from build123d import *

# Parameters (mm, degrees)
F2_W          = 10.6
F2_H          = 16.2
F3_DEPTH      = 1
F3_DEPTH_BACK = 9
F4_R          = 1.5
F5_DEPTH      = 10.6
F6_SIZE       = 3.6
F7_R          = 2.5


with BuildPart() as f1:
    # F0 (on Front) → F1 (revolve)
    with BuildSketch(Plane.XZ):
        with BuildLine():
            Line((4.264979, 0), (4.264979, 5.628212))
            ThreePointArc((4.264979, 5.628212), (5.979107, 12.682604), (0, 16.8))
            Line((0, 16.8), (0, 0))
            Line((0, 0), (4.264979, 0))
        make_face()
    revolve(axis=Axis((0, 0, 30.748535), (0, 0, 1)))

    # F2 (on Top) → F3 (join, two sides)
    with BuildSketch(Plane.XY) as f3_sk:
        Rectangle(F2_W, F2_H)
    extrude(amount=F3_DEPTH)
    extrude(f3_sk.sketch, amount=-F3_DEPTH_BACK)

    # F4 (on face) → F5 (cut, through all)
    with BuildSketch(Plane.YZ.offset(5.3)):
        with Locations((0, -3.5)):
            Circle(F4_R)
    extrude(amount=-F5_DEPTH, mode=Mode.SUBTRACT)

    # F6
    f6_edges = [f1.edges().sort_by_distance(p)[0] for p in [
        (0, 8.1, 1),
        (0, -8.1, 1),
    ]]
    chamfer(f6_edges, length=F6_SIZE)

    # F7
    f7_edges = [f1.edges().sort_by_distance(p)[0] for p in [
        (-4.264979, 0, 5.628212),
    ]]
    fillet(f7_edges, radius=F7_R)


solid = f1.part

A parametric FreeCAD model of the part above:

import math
import FreeCAD as App
import Part
import Sketcher


def edges_at(feature, points):
    """Names of the edges that pass closest to the given points."""
    edges = feature.Shape.Edges
    near = lambda p: min(range(len(edges)), key=lambda i: edges[i].distToShape(Part.Vertex(*p))[0])
    return sorted({f"Edge{near(p) + 1}" for p in points})


def add_polygon(sketch, points):
    """Adds a closed chain of lines whose ends are joined by coincident constraints."""
    first, n = sketch.GeometryCount, len(points)
    for a, b in zip(points, points[1:] + points[:1]):
        sketch.addGeometry(Part.LineSegment(App.Vector(*a, 0), App.Vector(*b, 0)), False)
    for i in range(n):
        sketch.addConstraint(Sketcher.Constraint("Coincident", first + i, 2, first + (i + 1) % n, 1))

doc = App.newDocument("Part")
body = doc.addObject("PartDesign::Body", "Body")

# Sketch on XZ plane
sketch1 = body.newObject("Sketcher::SketchObject", "Sketch")
sketch1.AttachmentSupport = (doc.getObject("XZ_Plane"), [""])
sketch1.MapMode = "FlatFace"
sketch1.addGeometry([
    Part.LineSegment(App.Vector(4.3, 0, 0), App.Vector(4.3, 5.6, 0)),
    Part.ArcOfCircle(Part.Circle(App.Vector(0, 10.4, 0), App.Vector(0, 0, 1), 6.4), math.radians(-48), math.radians(90)),
    Part.LineSegment(App.Vector(0, 16.8, 0), App.Vector(0, 0, 0)),
    Part.LineSegment(App.Vector(0, 0, 0), App.Vector(4.3, 0, 0)),
], False)
sketch1.addConstraint([
    Sketcher.Constraint("Coincident", 0, 2, 1, 1),
    Sketcher.Constraint("Coincident", 1, 2, 2, 1),
    Sketcher.Constraint("Coincident", 2, 2, 3, 1),
    Sketcher.Constraint("Coincident", 3, 2, 0, 1),
    Sketcher.Constraint("Vertical", 0),
    Sketcher.Constraint("Vertical", 2),
    Sketcher.Constraint("Horizontal", 3),
    Sketcher.Constraint("Coincident", 2, 2, -1, 1),
    Sketcher.Constraint("PointOnObject", 1, 3, -2),
    Sketcher.Constraint("Radius", 1, 6.4),
    Sketcher.Constraint("DistanceY", 2, 2, 2, 1, 16.8),
    Sketcher.Constraint("DistanceX", 3, 1, 3, 2, 4.264979),
])
revolution = body.newObject("PartDesign::Revolution", "Revolution")
revolution.Profile = sketch1
revolution.ReferenceAxis = (sketch1, ["V_Axis"])
revolution.Angle = 360

# Sketch on XY plane
sketch2 = body.newObject("Sketcher::SketchObject", "Sketch001")
sketch2.AttachmentSupport = (doc.getObject("XY_Plane"), [""])
sketch2.MapMode = "FlatFace"
add_polygon(sketch2, [(-5, 8), (-5, -8), (5, -8), (5, 8)])  # lines 0-3
sketch2.addConstraint([
    Sketcher.Constraint("Vertical", 0),
    Sketcher.Constraint("Horizontal", 1),
    Sketcher.Constraint("Vertical", 2),
    Sketcher.Constraint("Horizontal", 3),
    Sketcher.Constraint("Symmetric", 0, 2, 2, 2, -1, 1),
    Sketcher.Constraint("DistanceX", 1, 1, 1, 2, 10.6),
    Sketcher.Constraint("DistanceY", 0, 2, 0, 1, 16.2),
])
pad1 = body.newObject("PartDesign::Pad", "Pad")
pad1.Profile = sketch2
pad1.Type = "TwoLengths"
pad1.Length = 1
pad1.Length2 = 9

# Sketch on YZ plane
sketch3 = body.newObject("Sketcher::SketchObject", "Sketch002")
sketch3.AttachmentSupport = (doc.getObject("YZ_Plane"), [""])
sketch3.MapMode = "FlatFace"
sketch3.AttachmentOffset = App.Placement(App.Vector(0, 0, 5.3), App.Rotation())
sketch3.addGeometry(Part.Circle(App.Vector(0, -3.5, 0), App.Vector(0, 0, 1), 1.5), False)
sketch3.addConstraint([
    Sketcher.Constraint("PointOnObject", 0, 3, -2),
    Sketcher.Constraint("Diameter", 0, 3.0),
    Sketcher.Constraint("DistanceY", 0, 3, -1, 1, 3.5),
])
pocket1 = body.newObject("PartDesign::Pocket", "Pocket")
pocket1.Profile = sketch3
pocket1.Type = "ThroughAll"
doc.recompute()

chamfer = body.newObject("PartDesign::Chamfer", "Chamfer")
chamfer.Base = (pocket1, edges_at(pocket1, [(0, 8.1, 1), (0, -8.1, 1)]))
chamfer.Size = 3.6
doc.recompute()

fillet = body.newObject("PartDesign::Fillet", "Fillet")
fillet.Base = (chamfer, edges_at(chamfer, [(-4.265, 0, 5.628)]))
fillet.Radius = 2.5

doc.recompute()
